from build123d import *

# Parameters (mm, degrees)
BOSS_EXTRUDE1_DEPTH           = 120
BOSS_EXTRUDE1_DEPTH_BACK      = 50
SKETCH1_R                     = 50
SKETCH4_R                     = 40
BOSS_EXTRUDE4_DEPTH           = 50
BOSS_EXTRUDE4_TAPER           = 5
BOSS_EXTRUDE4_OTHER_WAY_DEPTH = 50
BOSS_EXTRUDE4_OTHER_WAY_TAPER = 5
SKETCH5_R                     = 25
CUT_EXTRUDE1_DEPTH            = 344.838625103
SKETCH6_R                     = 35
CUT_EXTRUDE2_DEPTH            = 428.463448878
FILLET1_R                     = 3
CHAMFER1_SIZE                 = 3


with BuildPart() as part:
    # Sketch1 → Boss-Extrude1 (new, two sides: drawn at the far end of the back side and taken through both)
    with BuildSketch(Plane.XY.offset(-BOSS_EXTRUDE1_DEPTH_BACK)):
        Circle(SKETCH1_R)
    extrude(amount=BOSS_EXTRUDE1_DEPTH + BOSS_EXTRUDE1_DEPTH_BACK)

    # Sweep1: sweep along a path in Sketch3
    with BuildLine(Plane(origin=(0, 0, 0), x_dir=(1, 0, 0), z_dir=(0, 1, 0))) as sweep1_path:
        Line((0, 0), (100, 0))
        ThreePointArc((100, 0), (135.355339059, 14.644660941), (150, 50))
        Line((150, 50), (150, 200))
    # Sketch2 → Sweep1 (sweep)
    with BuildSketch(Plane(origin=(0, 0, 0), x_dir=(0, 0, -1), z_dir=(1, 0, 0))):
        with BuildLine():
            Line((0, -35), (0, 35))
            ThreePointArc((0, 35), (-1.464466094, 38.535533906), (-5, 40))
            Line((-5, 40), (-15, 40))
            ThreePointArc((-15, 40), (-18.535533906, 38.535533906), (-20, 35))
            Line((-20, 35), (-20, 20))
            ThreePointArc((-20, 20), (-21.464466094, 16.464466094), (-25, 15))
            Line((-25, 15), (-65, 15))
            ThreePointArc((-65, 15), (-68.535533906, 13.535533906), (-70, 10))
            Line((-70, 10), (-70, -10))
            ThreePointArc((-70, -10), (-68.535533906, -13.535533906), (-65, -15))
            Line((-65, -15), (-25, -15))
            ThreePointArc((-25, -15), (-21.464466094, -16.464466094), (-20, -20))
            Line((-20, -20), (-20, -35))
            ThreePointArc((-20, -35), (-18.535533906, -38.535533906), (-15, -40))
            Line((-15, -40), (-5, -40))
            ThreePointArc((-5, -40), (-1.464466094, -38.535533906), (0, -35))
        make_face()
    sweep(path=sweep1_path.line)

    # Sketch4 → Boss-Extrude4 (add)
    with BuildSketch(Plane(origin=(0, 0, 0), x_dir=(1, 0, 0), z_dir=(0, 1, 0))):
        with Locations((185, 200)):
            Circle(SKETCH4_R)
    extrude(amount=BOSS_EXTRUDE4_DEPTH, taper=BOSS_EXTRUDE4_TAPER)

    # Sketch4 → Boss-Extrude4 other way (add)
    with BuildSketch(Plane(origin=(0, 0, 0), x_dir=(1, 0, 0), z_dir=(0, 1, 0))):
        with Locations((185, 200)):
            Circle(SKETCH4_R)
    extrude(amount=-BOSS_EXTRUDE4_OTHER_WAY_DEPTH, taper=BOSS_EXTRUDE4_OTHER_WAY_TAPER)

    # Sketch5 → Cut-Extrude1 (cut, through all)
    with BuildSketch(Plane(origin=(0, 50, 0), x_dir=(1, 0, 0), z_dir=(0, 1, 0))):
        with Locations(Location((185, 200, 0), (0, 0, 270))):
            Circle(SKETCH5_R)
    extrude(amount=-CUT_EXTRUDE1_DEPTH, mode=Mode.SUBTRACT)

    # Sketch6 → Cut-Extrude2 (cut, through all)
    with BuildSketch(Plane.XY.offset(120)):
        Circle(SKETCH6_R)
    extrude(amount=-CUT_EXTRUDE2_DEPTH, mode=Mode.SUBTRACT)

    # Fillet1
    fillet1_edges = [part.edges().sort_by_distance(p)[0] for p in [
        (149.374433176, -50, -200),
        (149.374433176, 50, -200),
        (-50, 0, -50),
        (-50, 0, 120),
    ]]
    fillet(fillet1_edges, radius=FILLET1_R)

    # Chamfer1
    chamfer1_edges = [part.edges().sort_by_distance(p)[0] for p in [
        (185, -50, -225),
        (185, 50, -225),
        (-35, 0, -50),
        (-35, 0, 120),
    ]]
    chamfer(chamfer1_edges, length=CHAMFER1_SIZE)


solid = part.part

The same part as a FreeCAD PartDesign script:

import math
import FreeCAD as App
import Part
import Sketcher
from FreeCAD import Vector
Q = App.Units.Quantity


def edges_at(feature, points):
    """Names of the edges that pass closest to the given points."""
    edges = feature.Shape.Edges
    near = lambda p: min(range(len(edges)), key=lambda i: edges[i].distToShape(Part.Vertex(*p))[0])
    return sorted({f"Edge{near(p) + 1}" for p in points})

doc = App.newDocument("Part")
params = doc.addObject("Spreadsheet::Sheet", "Params")
for row, (alias, value) in enumerate([
    ("sketch1_diameter", "100 mm"),
    ("pad1_length", "120 mm"),
    ("pad1_length2", "50 mm"),
    ("sketch2_radius", "5 mm"),
    ("sketch2_width", "70 mm"),
    ("sketch2_width2", "15 mm"),
    ("sketch2_height", "10 mm"),
    ("sketch2_height2", "40 mm"),
    ("sketch3_radius", "50 mm"),
    ("sketch3_width", "100 mm"),
    ("sketch3_height", "150 mm"),
    ("sketch4_diameter", "80 mm"),
    ("pad2_length", "50 mm"),
    ("pad2_taper", "-5 deg"),
    ("sketch5_diameter", "80 mm"),
    ("pad3_length", "50 mm"),
    ("pad3_taper", "-5 deg"),
    ("sketch6_diameter", "50 mm"),
    ("sketch7_diameter", "70 mm"),
    ("fillet_radius", "3 mm"),
    ("chamfer_size", "3 mm"),
], start=1):
    params.set(f"A{row}", alias)
    params.set(f"B{row}", "=" + value)
    params.setAlias(f"B{row}", alias)

body = doc.addObject("PartDesign::Body", "Body")

sketch1 = doc.addObject("Sketcher::SketchObject", "Sketch")
body.addObject(sketch1)
sketch1.AttachmentSupport = (doc.XY_Plane, [""])
sketch1.MapMode = "FlatFace"
sketch1.addGeometry(Part.Circle(Vector(0, 0, 0), Vector(0, 0, 1), 50), False)
sketch1.addConstraint([
    Sketcher.Constraint("Coincident", 0, 3, -1, 1),
    Sketcher.Constraint("Diameter", 0, Q("100 mm")),
])
sketch1.setExpression("Constraints[1]", "Params.sketch1_diameter")
pad1 = doc.addObject("PartDesign::Pad", "Pad")
body.addObject(pad1)
pad1.Profile = sketch1
pad1.Type = "TwoLengths"
pad1.setExpression("Length", "Params.pad1_length")
pad1.setExpression("Length2", "Params.pad1_length2")

sketch2 = doc.addObject("Sketcher::SketchObject", "Sketch001")
body.addObject(sketch2)
sketch2.AttachmentSupport = (doc.YZ_Plane, [""])
sketch2.MapMode = "FlatFace"
sketch2.addGeometry([
    Part.LineSegment(Vector(-35, 0, 0), Vector(35, 0, 0)),
    Part.ArcOfCircle(Part.Circle(Vector(35, 5, 0), Vector(0, 0, 1), 5), math.radians(-90), math.radians(0)),
    Part.LineSegment(Vector(40, 5, 0), Vector(40, 15, 0)),
    Part.ArcOfCircle(Part.Circle(Vector(35, 15, 0), Vector(0, 0, 1), 5), math.radians(0), math.radians(90)),
    Part.LineSegment(Vector(35, 20, 0), Vector(20, 20, 0)),
    Part.ArcOfCircle(Part.Circle(Vector(20, 25, 0), Vector(0, 0, 1), 5), math.radians(180), math.radians(270)),
    Part.LineSegment(Vector(15, 25, 0), Vector(15, 65, 0)),
    Part.ArcOfCircle(Part.Circle(Vector(10, 65, 0), Vector(0, 0, 1), 5), math.radians(0), math.radians(90)),
    Part.LineSegment(Vector(10, 70, 0), Vector(-10, 70, 0)),
    Part.ArcOfCircle(Part.Circle(Vector(-10, 65, 0), Vector(0, 0, 1), 5), math.radians(90), math.radians(180)),
    Part.LineSegment(Vector(-15, 65, 0), Vector(-15, 25, 0)),
    Part.ArcOfCircle(Part.Circle(Vector(-20, 25, 0), Vector(0, 0, 1), 5), math.radians(-90), math.radians(0)),
    Part.LineSegment(Vector(-20, 20, 0), Vector(-35, 20, 0)),
    Part.ArcOfCircle(Part.Circle(Vector(-35, 15, 0), Vector(0, 0, 1), 5), math.radians(90), math.radians(180)),
    Part.LineSegment(Vector(-40, 15, 0), Vector(-40, 5, 0)),
    Part.ArcOfCircle(Part.Circle(Vector(-35, 5, 0), Vector(0, 0, 1), 5), math.radians(180), math.radians(270)),
], False)
sketch2.addConstraint([
    Sketcher.Constraint("Tangent", 0, 2, 1, 1),
    Sketcher.Constraint("Tangent", 1, 2, 2, 1),
    Sketcher.Constraint("Tangent", 2, 2, 3, 1),
    Sketcher.Constraint("Tangent", 3, 2, 4, 1),
    Sketcher.Constraint("Tangent", 4, 2, 5, 2),
    Sketcher.Constraint("Tangent", 5, 1, 6, 1),
    Sketcher.Constraint("Tangent", 6, 2, 7, 1),
    Sketcher.Constraint("Tangent", 7, 2, 8, 1),
    Sketcher.Constraint("Tangent", 8, 2, 9, 1),
    Sketcher.Constraint("Tangent", 9, 2, 10, 1),
    Sketcher.Constraint("Tangent", 10, 2, 11, 2),
    Sketcher.Constraint("Tangent", 11, 1, 12, 1),
    Sketcher.Constraint("Tangent", 12, 2, 13, 1),
    Sketcher.Constraint("Tangent", 13, 2, 14, 1),
    Sketcher.Constraint("Tangent", 14, 2, 15, 1),
    Sketcher.Constraint("Tangent", 15, 2, 0, 1),
    Sketcher.Constraint("Horizontal", 0),
    Sketcher.Constraint("Vertical", 2),
    Sketcher.Constraint("Horizontal", 4),
    Sketcher.Constraint("Vertical", 6),
    Sketcher.Constraint("Horizontal", 8),
    Sketcher.Constraint("Vertical", 10),
    Sketcher.Constraint("Horizontal", 12),
    Sketcher.Constraint("Vertical", 14),
    Sketcher.Constraint("Equal", 1, 3),
    Sketcher.Constraint("Equal", 3, 5),
    Sketcher.Constraint("Equal", 5, 7),
    Sketcher.Constraint("Equal", 7, 9),
    Sketcher.Constraint("Equal", 9, 11),
    Sketcher.Constraint("Equal", 11, 13),
    Sketcher.Constraint("Equal", 13, 15),
    Sketcher.Constraint("Symmetric", 0, 2, 15, 2, -1, 1),
    Sketcher.Constraint("Symmetric", 5, 3, 11, 3, -2),
    Sketcher.Constraint("Radius", 1, Q("5 mm")),
    Sketcher.Constraint("DistanceX", 0, 1, 0, 2, Q("70 mm")),
    Sketcher.Constraint("DistanceX", 4, 2, 4, 1, Q("15 mm")),
    Sketcher.Constraint("DistanceY", 2, 1, 2, 2, Q("10 mm")),
    Sketcher.Constraint("DistanceY", 6, 1, 6, 2, Q("40 mm")),
])
sketch2.setExpression("Constraints[33]", "Params.sketch2_radius")
sketch2.setExpression("Constraints[34]", "Params.sketch2_width")
sketch2.setExpression("Constraints[35]", "Params.sketch2_width2")
sketch2.setExpression("Constraints[36]", "Params.sketch2_height")
sketch2.setExpression("Constraints[37]", "Params.sketch2_height2")

sketch3 = doc.addObject("Sketcher::SketchObject", "Sketch002")
body.addObject(sketch3)
sketch3.AttachmentSupport = (doc.XZ_Plane, [""])
sketch3.MapMode = "FlatFace"
sketch3.addGeometry([
    Part.LineSegment(Vector(0, 0, 0), Vector(100, 0, 0)),
    Part.ArcOfCircle(Part.Circle(Vector(100, -50, 0), Vector(0, 0, 1), 50), math.radians(0), math.radians(90)),
    Part.LineSegment(Vector(150, -50, 0), Vector(150, -200, 0)),
], False)
sketch3.addConstraint([
    Sketcher.Constraint("Tangent", 0, 2, 1, 2),
    Sketcher.Constraint("Tangent", 1, 1, 2, 1),
    Sketcher.Constraint("Horizontal", 0),
    Sketcher.Constraint("Vertical", 2),
    Sketcher.Constraint("Coincident", 0, 1, -1, 1),
    Sketcher.Constraint("Radius", 1, Q("50 mm")),
    Sketcher.Constraint("DistanceX", 0, 1, 0, 2, Q("100 mm")),
    Sketcher.Constraint("DistanceY", 2, 2, 2, 1, Q("150 mm")),
])
sketch3.setExpression("Constraints[5]", "Params.sketch3_radius")
sketch3.setExpression("Constraints[6]", "Params.sketch3_width")
sketch3.setExpression("Constraints[7]", "Params.sketch3_height")
doc.recompute()

additivepipe = doc.addObject("PartDesign::AdditivePipe", "AdditivePipe")
body.addObject(additivepipe)
additivepipe.Profile = sketch2
additivepipe.Spine = (sketch3, ["Edge1", "Edge2", "Edge3"])

sketch4 = doc.addObject("Sketcher::SketchObject", "Sketch003")
body.addObject(sketch4)
sketch4.AttachmentSupport = (doc.XZ_Plane, [""])
sketch4.MapMode = "FlatFace"
sketch4.addGeometry(Part.Circle(Vector(185, -200, 0), Vector(0, 0, 1), 40), False)
sketch4.addConstraint([
    Sketcher.Constraint("Diameter", 0, Q("80 mm")),
    Sketcher.Constraint("DistanceX", -1, 1, 0, 3, Q("185 mm")),
    Sketcher.Constraint("DistanceY", 0, 3, -1, 1, Q("200 mm")),
])
sketch4.setExpression("Constraints[0]", "Params.sketch4_diameter")
pad2 = doc.addObject("PartDesign::Pad", "Pad001")
body.addObject(pad2)
pad2.Profile = sketch4
pad2.setExpression("Length", "Params.pad2_length")
pad2.Reversed = True
pad2.setExpression("TaperAngle", "Params.pad2_taper")

sketch5 = doc.addObject("Sketcher::SketchObject", "Sketch004")
body.addObject(sketch5)
sketch5.AttachmentSupport = (doc.XZ_Plane, [""])
sketch5.MapMode = "FlatFace"
sketch5.addGeometry(Part.Circle(Vector(185, -200, 0), Vector(0, 0, 1), 40), False)
sketch5.addConstraint([
    Sketcher.Constraint("Diameter", 0, Q("80 mm")),
    Sketcher.Constraint("DistanceX", -1, 1, 0, 3, Q("185 mm")),
    Sketcher.Constraint("DistanceY", 0, 3, -1, 1, Q("200 mm")),
])
sketch5.setExpression("Constraints[0]", "Params.sketch5_diameter")
pad3 = doc.addObject("PartDesign::Pad", "Pad002")
body.addObject(pad3)
pad3.Profile = sketch5
pad3.setExpression("Length", "Params.pad3_length")
pad3.setExpression("TaperAngle", "Params.pad3_taper")

sketch6 = doc.addObject("Sketcher::SketchObject", "Sketch005")
body.addObject(sketch6)
sketch6.AttachmentSupport = (doc.XZ_Plane, [""])
sketch6.MapMode = "FlatFace"
sketch6.AttachmentOffset = App.Placement(Vector(0, 0, -50), App.Rotation())
sketch6.addGeometry(Part.Circle(Vector(185, -200, 0), Vector(0, 0, 1), 25), False)
sketch6.addConstraint([
    Sketcher.Constraint("Diameter", 0, Q("50 mm")),
    Sketcher.Constraint("DistanceX", -1, 1, 0, 3, Q("185 mm")),
    Sketcher.Constraint("DistanceY", 0, 3, -1, 1, Q("200 mm")),
])
sketch6.setExpression("Constraints[0]", "Params.sketch6_diameter")
pocket1 = doc.addObject("PartDesign::Pocket", "Pocket")
body.addObject(pocket1)
pocket1.Profile = sketch6
pocket1.Type = "ThroughAll"
pocket1.Reversed = True

sketch7 = doc.addObject("Sketcher::SketchObject", "Sketch006")
body.addObject(sketch7)
sketch7.AttachmentSupport = (doc.XY_Plane, [""])
sketch7.MapMode = "FlatFace"
sketch7.AttachmentOffset = App.Placement(Vector(0, 0, 120), App.Rotation())
sketch7.addGeometry(Part.Circle(Vector(0, 0, 0), Vector(0, 0, 1), 35), False)
sketch7.addConstraint([
    Sketcher.Constraint("Coincident", 0, 3, -1, 1),
    Sketcher.Constraint("Diameter", 0, Q("70 mm")),
])
sketch7.setExpression("Constraints[1]", "Params.sketch7_diameter")
pocket2 = doc.addObject("PartDesign::Pocket", "Pocket001")
body.addObject(pocket2)
pocket2.Profile = sketch7
pocket2.Type = "ThroughAll"
doc.recompute()

fillet = doc.addObject("PartDesign::Fillet", "Fillet")
body.addObject(fillet)
fillet.Base = (pocket2, edges_at(pocket2, [
    (149.374, -50, -200),
    (149.374, 50, -200),
    (-50, 0, -50),
    (-50, 0, 120),
]))
fillet.setExpression("Radius", "Params.fillet_radius")
doc.recompute()

chamfer = doc.addObject("PartDesign::Chamfer", "Chamfer")
body.addObject(chamfer)
chamfer.Base = (fillet, edges_at(fillet, [
    (185, -50, -225),
    (185, 50, -225),
    (-35, 0, -50),
    (-35, 0, 120),
]))
chamfer.setExpression("Size", "Params.chamfer_size")

doc.recompute()
